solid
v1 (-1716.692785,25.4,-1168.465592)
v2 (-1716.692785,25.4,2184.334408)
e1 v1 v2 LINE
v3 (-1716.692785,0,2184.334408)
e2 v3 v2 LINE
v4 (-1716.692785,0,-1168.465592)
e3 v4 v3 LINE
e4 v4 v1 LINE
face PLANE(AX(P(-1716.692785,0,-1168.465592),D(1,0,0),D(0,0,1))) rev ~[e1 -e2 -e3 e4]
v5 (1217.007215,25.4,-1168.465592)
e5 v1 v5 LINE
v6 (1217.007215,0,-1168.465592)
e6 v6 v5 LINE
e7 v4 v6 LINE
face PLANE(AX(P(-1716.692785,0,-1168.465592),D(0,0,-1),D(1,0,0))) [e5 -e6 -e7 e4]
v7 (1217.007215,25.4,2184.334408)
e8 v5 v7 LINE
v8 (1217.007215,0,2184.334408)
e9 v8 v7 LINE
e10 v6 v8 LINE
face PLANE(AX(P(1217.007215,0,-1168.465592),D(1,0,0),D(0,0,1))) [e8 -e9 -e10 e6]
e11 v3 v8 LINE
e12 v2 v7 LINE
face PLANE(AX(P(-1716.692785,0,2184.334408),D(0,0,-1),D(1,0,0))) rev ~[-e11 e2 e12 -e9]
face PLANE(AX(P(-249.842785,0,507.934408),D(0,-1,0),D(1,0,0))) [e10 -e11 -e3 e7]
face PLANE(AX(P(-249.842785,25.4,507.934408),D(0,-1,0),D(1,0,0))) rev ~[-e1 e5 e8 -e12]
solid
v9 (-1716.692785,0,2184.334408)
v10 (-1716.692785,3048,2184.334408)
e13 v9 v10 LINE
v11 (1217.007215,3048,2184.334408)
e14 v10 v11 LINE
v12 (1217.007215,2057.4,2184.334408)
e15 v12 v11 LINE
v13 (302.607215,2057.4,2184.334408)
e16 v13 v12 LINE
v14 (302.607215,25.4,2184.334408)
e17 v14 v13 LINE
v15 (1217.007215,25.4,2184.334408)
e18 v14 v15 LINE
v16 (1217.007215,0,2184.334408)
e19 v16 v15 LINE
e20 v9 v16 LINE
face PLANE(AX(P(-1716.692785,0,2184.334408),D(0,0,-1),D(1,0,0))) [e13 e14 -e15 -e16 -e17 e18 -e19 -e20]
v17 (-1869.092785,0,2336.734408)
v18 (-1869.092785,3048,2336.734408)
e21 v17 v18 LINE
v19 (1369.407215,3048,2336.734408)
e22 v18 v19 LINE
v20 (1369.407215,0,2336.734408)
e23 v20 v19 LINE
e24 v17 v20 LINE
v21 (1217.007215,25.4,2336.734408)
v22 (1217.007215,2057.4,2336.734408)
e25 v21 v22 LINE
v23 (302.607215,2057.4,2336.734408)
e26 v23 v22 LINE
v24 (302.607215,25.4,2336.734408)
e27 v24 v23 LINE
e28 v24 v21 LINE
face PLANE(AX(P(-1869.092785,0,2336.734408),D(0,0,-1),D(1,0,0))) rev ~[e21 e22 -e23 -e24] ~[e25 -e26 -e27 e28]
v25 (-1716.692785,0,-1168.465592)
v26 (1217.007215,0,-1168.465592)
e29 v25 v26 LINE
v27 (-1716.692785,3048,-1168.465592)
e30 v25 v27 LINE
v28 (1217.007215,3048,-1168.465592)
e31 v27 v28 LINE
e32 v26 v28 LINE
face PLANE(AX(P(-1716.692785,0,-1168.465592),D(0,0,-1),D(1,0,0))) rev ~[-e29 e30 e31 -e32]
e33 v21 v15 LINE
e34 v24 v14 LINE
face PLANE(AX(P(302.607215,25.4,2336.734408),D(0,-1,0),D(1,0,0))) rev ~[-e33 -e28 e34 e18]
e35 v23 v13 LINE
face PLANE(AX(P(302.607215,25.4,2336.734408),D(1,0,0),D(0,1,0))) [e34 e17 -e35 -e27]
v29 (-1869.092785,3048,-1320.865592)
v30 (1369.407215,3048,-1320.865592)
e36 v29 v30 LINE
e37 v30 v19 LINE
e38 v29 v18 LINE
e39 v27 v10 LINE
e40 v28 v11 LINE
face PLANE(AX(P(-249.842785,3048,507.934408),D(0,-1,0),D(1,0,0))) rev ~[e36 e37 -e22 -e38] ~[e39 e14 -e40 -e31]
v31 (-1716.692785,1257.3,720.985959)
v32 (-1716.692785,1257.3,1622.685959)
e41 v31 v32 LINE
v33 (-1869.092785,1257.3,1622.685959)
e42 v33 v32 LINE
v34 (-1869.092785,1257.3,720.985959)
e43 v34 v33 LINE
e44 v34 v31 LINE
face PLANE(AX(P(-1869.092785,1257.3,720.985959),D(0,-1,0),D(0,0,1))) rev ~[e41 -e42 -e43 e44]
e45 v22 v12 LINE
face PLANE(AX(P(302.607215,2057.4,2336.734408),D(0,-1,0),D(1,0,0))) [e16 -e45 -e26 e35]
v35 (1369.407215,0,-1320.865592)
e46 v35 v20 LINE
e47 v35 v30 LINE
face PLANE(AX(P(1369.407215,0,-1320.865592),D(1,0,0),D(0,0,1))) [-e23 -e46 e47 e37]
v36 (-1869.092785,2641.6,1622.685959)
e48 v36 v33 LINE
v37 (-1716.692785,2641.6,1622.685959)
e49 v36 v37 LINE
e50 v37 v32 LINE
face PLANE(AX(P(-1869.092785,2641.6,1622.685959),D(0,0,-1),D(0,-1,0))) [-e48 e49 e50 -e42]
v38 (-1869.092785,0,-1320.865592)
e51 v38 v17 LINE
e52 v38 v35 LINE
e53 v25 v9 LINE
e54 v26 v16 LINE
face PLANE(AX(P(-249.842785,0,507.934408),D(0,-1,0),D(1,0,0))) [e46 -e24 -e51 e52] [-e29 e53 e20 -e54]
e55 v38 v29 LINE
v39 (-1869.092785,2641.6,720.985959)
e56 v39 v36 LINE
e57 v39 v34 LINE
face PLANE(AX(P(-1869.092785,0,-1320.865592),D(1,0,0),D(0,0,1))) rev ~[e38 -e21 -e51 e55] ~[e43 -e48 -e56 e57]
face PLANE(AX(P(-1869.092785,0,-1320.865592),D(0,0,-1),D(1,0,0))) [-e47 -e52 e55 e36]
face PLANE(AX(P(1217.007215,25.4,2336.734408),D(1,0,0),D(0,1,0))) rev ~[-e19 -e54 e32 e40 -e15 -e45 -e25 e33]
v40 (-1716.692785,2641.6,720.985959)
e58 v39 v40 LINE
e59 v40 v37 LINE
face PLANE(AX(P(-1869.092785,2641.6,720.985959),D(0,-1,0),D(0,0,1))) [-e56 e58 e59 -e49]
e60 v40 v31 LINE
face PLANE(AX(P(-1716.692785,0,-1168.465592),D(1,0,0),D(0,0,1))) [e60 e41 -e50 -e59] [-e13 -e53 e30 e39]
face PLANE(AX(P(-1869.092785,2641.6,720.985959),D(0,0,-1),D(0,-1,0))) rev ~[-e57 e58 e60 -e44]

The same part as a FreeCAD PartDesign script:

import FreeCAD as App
import Part
import Sketcher
from FreeCAD import Vector
Q = App.Units.Quantity


def add_polygon(sketch, points):
    """Adds a closed chain of lines whose ends are joined by coincident constraints."""
    first, n = sketch.GeometryCount, len(points)
    for a, b in zip(points, points[1:] + points[:1]):
        sketch.addGeometry(Part.LineSegment(App.Vector(*a, 0), App.Vector(*b, 0)), False)
    for i in range(n):
        sketch.addConstraint(Sketcher.Constraint("Coincident", first + i, 2, first + (i + 1) % n, 1))

doc = App.newDocument("Part")
body = doc.addObject("PartDesign::Body", "Body")

sketch1 = doc.addObject("Sketcher::SketchObject", "Sketch")
body.addObject(sketch1)
sketch1.AttachmentSupport = (doc.XZ_Plane, [""])
sketch1.MapMode = "FlatFace"
add_polygon(sketch1, [(-1717, 2184), (-1717, -1168), (1217, -1168), (1217, 2184)])
sketch1.addConstraint([
    Sketcher.Constraint("Vertical", 0),
    Sketcher.Constraint("Horizontal", 1),
    Sketcher.Constraint("Vertical", 2),
    Sketcher.Constraint("Horizontal", 3),
    Sketcher.Constraint("DistanceY", 0, 2, 0, 1, Q("132 in")),
    Sketcher.Constraint("DistanceX", 1, 1, 1, 2, Q("115.5 in")),
    Sketcher.Constraint("DistanceY", 0, 2, -1, 1, 1168.465592),
    Sketcher.Constraint("DistanceX", 0, 2, -1, 1, 1716.692785),
])
pad1 = doc.addObject("PartDesign::Pad", "Pad")
body.addObject(pad1)
pad1.Profile = sketch1
pad1.Length = Q("1 in")
pad1.Reversed = True
body2 = doc.addObject("PartDesign::Body", "Body001")

sketch2 = doc.addObject("Sketcher::SketchObject", "Sketch001")
body2.addObject(sketch2)
sketch2.AttachmentSupport = (doc.getObject("XZ_Plane001"), [""])
sketch2.MapMode = "FlatFace"
add_polygon(sketch2, [(-1869, 2337), (-1869, -1321), (1369, -1321), (1369, 2337)])
add_polygon(sketch2, [(1217, -1168), (-1717, -1168), (-1717, 2184), (1217, 2184)])
sketch2.addConstraint([
    Sketcher.Constraint("Vertical", 0),
    Sketcher.Constraint("Horizontal", 1),
    Sketcher.Constraint("Vertical", 2),
    Sketcher.Constraint("Horizontal", 3),
    Sketcher.Constraint("Horizontal", 4),
    Sketcher.Constraint("Vertical", 5),
    Sketcher.Constraint("Horizontal", 6),
    Sketcher.Constraint("Vertical", 7),
    Sketcher.Constraint("DistanceY", 0, 2, 0, 1, Q("144 in")),
    Sketcher.Constraint("DistanceY", 5, 1, 5, 2, Q("132 in")),
    Sketcher.Constraint("DistanceX", 1, 1, 1, 2, Q("127.5 in")),
    Sketcher.Constraint("DistanceX", 4, 2, 4, 1, Q("115.5 in")),
    Sketcher.Constraint("DistanceX", 0, 2, 4, 2, Q("6 in")),
    Sketcher.Constraint("DistanceY", 0, 2, 4, 2, Q("6 in")),
    Sketcher.Constraint("DistanceY", 0, 2, -1, 1, 1320.865592),
    Sketcher.Constraint("DistanceX", 0, 2, -1, 1, 1869.092785),
])
pad2 = doc.addObject("PartDesign::Pad", "Pad001")
body2.addObject(pad2)
pad2.Profile = sketch2
pad2.Length = Q("120 in")
pad2.Reversed = True

sketch3 = doc.addObject("Sketcher::SketchObject", "Sketch002")
body2.addObject(sketch3)
sketch3.AttachmentSupport = (doc.getObject("XY_Plane001"), [""])
sketch3.MapMode = "FlatFace"
sketch3.AttachmentOffset = App.Placement(Vector(0, 0, 2336.734408), App.Rotation())
add_polygon(sketch3, [(303, 2057), (303, 25), (1217, 25), (1217, 2057)])
sketch3.addConstraint([
    Sketcher.Constraint("Vertical", 0),
    Sketcher.Constraint("Horizontal", 1),
    Sketcher.Constraint("Vertical", 2),
    Sketcher.Constraint("Horizontal", 3),
    Sketcher.Constraint("DistanceX", 1, 1, 1, 2, Q("36 in")),
    Sketcher.Constraint("DistanceY", 0, 2, 0, 1, Q("80 in")),
    Sketcher.Constraint("DistanceY", -1, 1, 0, 2, Q("1 in")),
    Sketcher.Constraint("DistanceX", -1, 1, 0, 2, 302.607215),
])
pocket1 = doc.addObject("PartDesign::Pocket", "Pocket")
body2.addObject(pocket1)
pocket1.Profile = sketch3
pocket1.Length = Q("6 in")

sketch4 = doc.addObject("Sketcher::SketchObject", "Sketch003")
body2.addObject(sketch4)
sketch4.AttachmentSupport = (doc.getObject("YZ_Plane001"), [""])
sketch4.MapMode = "FlatFace"
sketch4.AttachmentOffset = App.Placement(Vector(0, 0, -1869.092785), App.Rotation())
add_polygon(sketch4, [(2642, 1623), (2642, 721), (1257, 721), (1257, 1623)])
sketch4.addConstraint([
    Sketcher.Constraint("Vertical", 0),
    Sketcher.Constraint("Horizontal", 1),
    Sketcher.Constraint("Vertical", 2),
    Sketcher.Constraint("Horizontal", 3),
    Sketcher.Constraint("DistanceX", 1, 2, 1, 1, Q("54.5 in")),
    Sketcher.Constraint("DistanceY", 0, 2, 0, 1, Q("35.5 in")),
    Sketcher.Constraint("DistanceX", -1, 1, 0, 2, Q("104 in")),
    Sketcher.Constraint("DistanceY", -1, 1, 0, 2, 720.985959),
])
pocket2 = doc.addObject("PartDesign::Pocket", "Pocket001")
body2.addObject(pocket2)
pocket2.Profile = sketch4
pocket2.Length = Q("6 in")
pocket2.Reversed = True

doc.recompute()
